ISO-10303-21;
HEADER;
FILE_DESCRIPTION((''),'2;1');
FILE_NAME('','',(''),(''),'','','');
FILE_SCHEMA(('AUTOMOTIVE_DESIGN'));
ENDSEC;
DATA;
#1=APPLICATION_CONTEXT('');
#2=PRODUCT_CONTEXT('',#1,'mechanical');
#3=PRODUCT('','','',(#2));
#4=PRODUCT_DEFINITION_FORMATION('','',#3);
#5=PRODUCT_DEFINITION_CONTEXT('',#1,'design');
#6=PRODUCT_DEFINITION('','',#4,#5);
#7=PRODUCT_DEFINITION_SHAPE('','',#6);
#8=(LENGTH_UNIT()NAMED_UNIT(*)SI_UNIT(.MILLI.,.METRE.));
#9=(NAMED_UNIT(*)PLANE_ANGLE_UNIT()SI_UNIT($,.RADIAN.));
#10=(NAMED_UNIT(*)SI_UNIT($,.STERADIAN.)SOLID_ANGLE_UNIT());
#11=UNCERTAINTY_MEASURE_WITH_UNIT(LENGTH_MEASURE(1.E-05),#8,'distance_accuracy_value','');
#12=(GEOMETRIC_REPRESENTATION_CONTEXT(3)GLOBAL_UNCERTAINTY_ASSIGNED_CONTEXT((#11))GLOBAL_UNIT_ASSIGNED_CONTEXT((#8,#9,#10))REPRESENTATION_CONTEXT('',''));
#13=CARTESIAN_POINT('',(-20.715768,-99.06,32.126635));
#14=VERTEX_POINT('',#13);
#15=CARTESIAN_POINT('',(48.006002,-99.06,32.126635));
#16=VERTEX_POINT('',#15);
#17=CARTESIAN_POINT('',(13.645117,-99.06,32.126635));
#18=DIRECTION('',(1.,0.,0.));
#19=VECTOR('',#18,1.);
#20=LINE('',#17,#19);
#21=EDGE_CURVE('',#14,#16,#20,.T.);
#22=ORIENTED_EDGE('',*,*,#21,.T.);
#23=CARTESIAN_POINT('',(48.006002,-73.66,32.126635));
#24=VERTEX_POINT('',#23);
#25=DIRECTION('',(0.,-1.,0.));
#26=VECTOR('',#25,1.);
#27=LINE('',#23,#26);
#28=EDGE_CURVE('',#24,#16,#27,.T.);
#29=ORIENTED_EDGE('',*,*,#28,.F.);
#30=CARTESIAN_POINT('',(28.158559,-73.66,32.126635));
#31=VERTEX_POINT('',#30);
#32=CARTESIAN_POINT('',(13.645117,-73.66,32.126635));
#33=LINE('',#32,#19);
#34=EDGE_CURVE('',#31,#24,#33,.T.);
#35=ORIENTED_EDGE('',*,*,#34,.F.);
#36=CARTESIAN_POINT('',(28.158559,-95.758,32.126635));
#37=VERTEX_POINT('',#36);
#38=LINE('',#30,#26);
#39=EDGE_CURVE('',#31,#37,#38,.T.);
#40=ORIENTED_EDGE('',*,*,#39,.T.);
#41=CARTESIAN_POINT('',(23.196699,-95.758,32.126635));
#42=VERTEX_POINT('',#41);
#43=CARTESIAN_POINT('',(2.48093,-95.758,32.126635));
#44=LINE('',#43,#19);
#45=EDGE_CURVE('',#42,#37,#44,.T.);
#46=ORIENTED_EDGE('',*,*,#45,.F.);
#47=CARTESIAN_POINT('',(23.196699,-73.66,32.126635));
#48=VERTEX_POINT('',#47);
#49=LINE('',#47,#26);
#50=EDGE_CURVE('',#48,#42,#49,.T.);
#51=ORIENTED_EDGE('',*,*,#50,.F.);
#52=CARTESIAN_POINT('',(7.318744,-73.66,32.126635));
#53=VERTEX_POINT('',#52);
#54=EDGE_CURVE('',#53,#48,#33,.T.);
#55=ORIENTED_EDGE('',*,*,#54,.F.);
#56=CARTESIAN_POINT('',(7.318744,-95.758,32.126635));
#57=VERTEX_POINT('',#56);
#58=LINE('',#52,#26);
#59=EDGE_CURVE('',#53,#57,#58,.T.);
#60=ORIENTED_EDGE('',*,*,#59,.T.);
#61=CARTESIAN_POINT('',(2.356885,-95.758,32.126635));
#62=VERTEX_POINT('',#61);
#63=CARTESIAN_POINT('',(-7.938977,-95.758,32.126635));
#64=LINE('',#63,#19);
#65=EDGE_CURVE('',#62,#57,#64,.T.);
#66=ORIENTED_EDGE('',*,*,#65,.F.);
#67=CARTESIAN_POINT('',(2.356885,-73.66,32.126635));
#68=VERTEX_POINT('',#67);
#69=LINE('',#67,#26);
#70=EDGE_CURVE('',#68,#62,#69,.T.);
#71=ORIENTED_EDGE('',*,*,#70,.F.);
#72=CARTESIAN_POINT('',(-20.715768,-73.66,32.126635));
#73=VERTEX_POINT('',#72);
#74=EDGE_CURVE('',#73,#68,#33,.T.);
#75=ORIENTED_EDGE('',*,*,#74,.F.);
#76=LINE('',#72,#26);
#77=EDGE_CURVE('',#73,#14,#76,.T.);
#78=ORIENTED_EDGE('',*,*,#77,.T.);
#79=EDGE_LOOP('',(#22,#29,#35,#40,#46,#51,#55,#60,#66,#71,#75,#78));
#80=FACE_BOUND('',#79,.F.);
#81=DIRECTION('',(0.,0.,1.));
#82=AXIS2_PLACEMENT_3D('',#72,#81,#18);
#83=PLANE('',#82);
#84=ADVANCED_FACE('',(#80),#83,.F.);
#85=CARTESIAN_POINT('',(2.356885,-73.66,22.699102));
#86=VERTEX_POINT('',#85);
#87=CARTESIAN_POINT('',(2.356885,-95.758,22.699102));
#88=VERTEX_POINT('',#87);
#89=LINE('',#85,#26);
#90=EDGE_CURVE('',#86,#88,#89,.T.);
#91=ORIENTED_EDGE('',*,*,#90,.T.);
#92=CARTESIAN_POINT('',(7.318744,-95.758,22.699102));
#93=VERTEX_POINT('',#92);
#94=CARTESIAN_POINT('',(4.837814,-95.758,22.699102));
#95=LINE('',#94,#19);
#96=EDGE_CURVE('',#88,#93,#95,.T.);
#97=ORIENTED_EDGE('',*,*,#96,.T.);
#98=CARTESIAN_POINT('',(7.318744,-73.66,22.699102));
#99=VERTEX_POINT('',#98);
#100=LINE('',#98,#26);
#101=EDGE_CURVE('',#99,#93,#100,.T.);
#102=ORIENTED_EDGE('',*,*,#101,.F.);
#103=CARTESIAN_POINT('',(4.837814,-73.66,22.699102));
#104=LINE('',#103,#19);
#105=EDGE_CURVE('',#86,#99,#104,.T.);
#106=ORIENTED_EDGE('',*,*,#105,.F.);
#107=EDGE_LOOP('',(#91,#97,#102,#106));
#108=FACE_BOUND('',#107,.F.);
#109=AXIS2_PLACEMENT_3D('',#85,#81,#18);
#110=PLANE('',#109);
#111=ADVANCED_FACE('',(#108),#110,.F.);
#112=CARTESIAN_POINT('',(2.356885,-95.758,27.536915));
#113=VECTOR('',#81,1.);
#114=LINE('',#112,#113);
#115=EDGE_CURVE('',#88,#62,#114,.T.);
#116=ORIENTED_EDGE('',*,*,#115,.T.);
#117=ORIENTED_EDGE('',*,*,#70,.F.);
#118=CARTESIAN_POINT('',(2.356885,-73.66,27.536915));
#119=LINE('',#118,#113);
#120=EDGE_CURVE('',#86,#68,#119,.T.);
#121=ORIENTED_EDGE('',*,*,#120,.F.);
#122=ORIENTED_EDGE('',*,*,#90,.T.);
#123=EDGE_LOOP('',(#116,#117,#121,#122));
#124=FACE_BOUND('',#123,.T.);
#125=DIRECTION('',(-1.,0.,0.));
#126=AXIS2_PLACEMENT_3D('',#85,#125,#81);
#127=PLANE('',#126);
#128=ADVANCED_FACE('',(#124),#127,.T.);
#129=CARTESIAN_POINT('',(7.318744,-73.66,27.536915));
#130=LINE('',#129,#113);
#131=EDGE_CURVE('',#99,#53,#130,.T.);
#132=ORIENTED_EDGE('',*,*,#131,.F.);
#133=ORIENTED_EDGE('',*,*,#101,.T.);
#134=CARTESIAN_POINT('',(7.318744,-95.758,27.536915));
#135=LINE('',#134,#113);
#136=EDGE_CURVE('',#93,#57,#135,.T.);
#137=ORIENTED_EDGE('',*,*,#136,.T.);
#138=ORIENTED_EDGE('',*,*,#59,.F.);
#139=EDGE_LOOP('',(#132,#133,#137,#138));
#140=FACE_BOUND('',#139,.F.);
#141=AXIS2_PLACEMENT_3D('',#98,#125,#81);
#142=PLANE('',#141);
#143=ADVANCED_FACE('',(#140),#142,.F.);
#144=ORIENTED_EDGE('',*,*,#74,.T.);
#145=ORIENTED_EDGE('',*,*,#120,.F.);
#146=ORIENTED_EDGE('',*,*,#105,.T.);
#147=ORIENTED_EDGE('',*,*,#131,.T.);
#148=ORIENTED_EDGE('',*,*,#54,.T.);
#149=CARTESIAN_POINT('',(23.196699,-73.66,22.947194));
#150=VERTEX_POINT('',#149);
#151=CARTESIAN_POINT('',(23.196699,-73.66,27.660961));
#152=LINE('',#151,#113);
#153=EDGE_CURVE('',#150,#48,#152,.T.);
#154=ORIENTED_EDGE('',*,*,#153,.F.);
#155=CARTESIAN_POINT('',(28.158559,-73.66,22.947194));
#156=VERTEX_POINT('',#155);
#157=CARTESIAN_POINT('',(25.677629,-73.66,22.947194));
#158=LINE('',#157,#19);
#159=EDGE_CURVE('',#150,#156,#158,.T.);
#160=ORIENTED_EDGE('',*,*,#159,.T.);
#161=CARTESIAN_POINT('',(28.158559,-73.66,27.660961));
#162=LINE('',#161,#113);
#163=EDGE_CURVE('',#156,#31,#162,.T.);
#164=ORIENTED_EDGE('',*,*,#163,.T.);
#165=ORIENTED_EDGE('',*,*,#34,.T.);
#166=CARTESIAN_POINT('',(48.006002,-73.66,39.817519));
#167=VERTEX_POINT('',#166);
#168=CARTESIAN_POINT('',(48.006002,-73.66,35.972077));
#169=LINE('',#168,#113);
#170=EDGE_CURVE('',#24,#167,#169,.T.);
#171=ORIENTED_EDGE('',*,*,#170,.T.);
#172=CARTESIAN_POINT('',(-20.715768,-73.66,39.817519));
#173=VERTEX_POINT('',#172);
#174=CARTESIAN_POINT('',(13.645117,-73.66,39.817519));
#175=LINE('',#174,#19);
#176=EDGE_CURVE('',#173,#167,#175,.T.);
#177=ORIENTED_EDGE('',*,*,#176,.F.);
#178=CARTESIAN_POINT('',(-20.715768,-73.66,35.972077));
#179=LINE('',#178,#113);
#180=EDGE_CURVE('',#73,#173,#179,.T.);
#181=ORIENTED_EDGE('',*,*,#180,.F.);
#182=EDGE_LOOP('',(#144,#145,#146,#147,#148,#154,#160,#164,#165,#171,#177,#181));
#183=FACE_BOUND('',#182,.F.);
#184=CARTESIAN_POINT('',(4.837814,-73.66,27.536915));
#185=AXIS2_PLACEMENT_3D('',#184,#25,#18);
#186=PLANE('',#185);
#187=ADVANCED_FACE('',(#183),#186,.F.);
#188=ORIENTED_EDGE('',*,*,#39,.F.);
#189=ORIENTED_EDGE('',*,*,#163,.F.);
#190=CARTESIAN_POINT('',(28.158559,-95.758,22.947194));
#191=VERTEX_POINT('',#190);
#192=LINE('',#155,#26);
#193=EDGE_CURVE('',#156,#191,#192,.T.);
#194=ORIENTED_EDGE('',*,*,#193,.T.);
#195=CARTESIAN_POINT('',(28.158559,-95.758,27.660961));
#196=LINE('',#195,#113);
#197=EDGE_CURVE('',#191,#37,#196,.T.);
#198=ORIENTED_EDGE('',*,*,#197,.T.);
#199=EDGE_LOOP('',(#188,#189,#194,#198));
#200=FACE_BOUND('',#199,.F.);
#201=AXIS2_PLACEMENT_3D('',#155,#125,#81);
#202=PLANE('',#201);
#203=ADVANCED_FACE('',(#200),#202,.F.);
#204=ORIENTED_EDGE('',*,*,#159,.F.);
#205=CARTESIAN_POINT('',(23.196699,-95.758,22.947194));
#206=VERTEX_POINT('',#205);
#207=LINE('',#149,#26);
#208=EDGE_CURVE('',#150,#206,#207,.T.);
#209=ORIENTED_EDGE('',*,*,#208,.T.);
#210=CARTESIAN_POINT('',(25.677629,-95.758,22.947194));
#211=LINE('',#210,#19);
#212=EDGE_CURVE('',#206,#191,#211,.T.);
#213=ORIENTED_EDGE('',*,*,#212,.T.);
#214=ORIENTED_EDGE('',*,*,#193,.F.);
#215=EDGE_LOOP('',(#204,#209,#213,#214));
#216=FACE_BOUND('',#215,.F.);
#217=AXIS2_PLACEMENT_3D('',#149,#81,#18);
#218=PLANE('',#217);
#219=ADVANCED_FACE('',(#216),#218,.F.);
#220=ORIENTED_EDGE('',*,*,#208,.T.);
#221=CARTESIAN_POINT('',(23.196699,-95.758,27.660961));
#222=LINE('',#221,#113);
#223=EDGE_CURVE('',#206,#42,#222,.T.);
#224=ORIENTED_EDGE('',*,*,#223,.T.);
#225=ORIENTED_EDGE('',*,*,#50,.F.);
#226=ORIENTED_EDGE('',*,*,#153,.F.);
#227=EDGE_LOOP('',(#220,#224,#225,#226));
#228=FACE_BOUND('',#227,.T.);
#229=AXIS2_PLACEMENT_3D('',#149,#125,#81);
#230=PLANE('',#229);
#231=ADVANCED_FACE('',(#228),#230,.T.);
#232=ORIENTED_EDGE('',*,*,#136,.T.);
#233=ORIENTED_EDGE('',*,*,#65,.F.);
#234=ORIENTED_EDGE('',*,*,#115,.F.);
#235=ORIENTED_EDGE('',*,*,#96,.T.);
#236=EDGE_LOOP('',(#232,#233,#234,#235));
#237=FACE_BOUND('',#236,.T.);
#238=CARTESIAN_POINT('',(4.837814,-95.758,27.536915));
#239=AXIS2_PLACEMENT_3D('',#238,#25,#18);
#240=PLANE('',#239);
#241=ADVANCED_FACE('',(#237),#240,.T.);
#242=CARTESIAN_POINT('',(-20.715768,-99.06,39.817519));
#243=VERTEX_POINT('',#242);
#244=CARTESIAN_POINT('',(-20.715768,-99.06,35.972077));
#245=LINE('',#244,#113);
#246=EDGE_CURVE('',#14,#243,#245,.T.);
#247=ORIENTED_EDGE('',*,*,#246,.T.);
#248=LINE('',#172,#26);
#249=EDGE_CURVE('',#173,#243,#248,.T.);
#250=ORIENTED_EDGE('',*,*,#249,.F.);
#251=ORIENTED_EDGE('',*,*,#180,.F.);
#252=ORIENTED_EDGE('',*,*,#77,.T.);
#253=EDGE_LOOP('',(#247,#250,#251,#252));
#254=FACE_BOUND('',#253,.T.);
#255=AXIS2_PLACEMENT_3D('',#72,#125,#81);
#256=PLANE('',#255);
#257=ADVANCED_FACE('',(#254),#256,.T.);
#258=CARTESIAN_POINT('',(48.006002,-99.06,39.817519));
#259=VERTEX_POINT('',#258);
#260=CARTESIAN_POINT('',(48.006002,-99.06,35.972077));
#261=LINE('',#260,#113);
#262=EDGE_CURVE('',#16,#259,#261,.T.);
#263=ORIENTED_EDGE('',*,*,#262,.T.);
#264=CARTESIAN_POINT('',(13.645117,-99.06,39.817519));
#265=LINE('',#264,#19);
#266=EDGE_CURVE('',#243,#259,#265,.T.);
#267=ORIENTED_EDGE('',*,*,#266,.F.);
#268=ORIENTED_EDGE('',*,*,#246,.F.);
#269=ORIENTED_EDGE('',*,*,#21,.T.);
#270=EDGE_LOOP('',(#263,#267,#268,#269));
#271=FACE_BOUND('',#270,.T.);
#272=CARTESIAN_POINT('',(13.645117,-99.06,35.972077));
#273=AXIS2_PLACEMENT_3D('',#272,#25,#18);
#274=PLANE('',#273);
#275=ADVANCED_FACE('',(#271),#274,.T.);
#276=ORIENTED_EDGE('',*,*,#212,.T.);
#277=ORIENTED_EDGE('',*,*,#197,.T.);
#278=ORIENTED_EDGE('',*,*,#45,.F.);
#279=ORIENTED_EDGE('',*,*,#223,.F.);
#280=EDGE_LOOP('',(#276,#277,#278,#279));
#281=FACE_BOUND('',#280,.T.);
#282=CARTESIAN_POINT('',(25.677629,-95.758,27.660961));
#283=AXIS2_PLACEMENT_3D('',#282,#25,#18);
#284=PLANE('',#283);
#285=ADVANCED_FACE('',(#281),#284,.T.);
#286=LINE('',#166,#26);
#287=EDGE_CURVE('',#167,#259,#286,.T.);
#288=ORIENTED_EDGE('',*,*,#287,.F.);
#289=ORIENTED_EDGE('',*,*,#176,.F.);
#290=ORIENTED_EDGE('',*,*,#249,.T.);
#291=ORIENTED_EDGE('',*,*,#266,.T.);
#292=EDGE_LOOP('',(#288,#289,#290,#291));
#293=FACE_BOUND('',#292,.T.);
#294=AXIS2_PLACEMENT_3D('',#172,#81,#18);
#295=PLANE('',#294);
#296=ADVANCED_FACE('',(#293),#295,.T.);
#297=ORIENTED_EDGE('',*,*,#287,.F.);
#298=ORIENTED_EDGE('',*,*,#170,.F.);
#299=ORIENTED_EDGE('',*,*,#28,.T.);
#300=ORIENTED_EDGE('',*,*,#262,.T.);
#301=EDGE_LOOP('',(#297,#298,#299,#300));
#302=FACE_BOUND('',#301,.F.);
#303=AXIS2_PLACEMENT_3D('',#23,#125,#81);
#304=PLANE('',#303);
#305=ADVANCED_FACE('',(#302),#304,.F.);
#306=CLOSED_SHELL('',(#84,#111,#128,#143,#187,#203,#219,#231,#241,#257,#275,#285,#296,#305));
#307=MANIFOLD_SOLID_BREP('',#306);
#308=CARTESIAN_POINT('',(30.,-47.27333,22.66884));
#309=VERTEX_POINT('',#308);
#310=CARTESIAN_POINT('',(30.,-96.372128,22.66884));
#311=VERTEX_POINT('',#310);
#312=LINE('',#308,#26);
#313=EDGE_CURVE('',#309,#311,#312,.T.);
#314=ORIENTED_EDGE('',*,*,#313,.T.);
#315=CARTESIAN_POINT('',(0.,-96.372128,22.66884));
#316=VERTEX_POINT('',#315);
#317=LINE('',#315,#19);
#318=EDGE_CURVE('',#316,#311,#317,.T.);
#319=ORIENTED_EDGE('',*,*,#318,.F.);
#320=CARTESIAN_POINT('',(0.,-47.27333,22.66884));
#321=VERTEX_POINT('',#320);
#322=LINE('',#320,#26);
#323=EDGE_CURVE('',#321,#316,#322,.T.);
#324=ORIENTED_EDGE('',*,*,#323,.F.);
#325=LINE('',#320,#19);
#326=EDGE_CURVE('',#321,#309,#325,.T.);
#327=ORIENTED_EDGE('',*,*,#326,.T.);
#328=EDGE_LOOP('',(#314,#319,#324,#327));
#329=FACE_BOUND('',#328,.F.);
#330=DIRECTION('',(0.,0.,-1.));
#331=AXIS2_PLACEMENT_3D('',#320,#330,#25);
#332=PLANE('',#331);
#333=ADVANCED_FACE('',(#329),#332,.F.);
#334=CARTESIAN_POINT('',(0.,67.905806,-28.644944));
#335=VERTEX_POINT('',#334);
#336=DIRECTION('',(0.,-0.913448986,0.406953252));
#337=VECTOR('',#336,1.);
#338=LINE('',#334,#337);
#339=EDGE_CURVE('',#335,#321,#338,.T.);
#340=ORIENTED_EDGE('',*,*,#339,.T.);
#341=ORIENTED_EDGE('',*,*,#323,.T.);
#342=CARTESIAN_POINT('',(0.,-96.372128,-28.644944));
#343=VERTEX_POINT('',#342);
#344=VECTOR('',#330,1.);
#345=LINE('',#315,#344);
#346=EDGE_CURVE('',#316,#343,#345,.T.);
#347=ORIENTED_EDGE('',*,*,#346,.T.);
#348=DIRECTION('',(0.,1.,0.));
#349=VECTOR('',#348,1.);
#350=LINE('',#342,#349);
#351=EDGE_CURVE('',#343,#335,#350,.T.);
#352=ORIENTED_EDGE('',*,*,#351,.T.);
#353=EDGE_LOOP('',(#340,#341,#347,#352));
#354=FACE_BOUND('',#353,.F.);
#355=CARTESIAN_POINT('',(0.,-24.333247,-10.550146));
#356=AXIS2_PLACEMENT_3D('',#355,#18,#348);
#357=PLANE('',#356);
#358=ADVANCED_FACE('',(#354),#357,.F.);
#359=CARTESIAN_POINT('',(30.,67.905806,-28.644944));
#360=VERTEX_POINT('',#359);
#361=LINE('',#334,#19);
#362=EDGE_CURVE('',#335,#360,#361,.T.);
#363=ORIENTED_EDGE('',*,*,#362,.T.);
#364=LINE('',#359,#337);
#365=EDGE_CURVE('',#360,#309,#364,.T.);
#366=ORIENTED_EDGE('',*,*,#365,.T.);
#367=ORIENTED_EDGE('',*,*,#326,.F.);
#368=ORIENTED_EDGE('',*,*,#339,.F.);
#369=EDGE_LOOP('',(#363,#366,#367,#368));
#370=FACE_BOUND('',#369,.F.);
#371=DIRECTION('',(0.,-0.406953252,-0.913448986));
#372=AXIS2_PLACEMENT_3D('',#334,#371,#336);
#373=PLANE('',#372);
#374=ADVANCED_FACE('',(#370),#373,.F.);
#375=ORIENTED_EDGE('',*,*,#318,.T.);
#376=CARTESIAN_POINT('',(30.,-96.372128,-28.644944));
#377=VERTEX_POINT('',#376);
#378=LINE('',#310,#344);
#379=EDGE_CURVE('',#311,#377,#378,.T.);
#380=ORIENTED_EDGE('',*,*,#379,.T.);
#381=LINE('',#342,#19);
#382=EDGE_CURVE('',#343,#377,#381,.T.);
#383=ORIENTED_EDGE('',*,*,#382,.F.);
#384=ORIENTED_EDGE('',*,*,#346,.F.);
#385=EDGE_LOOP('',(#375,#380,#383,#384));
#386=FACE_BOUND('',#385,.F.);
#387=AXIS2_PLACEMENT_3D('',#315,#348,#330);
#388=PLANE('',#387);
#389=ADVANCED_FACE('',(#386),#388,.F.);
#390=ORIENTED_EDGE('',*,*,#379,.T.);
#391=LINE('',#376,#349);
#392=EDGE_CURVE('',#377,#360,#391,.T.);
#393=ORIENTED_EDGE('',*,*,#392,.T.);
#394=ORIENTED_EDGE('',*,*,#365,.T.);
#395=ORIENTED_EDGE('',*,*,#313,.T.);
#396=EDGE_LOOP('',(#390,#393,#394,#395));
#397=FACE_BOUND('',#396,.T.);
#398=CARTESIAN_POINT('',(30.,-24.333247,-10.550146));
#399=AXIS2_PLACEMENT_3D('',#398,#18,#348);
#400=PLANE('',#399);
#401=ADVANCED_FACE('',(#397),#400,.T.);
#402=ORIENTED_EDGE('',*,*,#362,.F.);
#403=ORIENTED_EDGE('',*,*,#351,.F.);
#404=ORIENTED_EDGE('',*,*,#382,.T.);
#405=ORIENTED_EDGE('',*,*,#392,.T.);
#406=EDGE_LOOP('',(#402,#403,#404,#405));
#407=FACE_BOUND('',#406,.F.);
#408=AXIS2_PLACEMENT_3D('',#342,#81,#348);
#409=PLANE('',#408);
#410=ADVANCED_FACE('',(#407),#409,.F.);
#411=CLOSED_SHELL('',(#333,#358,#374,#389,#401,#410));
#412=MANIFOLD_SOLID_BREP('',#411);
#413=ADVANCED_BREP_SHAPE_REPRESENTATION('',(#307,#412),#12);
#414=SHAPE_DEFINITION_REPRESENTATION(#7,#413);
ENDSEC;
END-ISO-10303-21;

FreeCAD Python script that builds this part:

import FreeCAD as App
import Part
import Sketcher

V = App.Vector
Q = App.Units.Quantity

doc = App.newDocument("Part")
params = doc.addObject("Spreadsheet::Sheet", "Params")
for row, (alias, value) in enumerate([
    ("pad1_length", "30 mm"),
    ("pad2_length", "1 in"),
    ("pad3_length", "0.87 in"),
], start=1):
    params.set(f"A{row}", alias)
    params.set(f"B{row}", "=" + value)
    params.setAlias(f"B{row}", alias)

body = doc.addObject("PartDesign::Body", "Body")

# Sketch on YZ plane
sketch1 = doc.addObject("Sketcher::SketchObject", "Sketch")
body.addObject(sketch1)
sketch1.AttachmentSupport = (doc.YZ_Plane, [""])
sketch1.MapMode = "FlatFace"
sketch1.addGeometry(Part.LineSegment(V(-47.27333, 22.66884, 0), V(-96.372128, 22.66884, 0)), False)
sketch1.addGeometry(Part.LineSegment(V(-96.372128, 22.66884, 0), V(-96.372128, -28.644944, 0)), False)
sketch1.addGeometry(Part.LineSegment(V(-96.372128, -28.644944, 0), V(67.905806, -28.644944, 0)), False)
sketch1.addGeometry(Part.LineSegment(V(67.905806, -28.644944, 0), V(-47.27333, 22.66884, 0)), False)
sketch1.addConstraint(Sketcher.Constraint("Coincident", 0, 2, 1, 1))
sketch1.addConstraint(Sketcher.Constraint("Coincident", 1, 2, 2, 1))
sketch1.addConstraint(Sketcher.Constraint("Coincident", 2, 2, 3, 1))
sketch1.addConstraint(Sketcher.Constraint("Coincident", 3, 2, 0, 1))
sketch1.addConstraint(Sketcher.Constraint("Horizontal", 0))
sketch1.addConstraint(Sketcher.Constraint("Vertical", 1))
sketch1.addConstraint(Sketcher.Constraint("Horizontal", 2))
sketch1.addConstraint(Sketcher.Constraint("DistanceX", 0, 2, 0, 1, 49.098798))
sketch1.addConstraint(Sketcher.Constraint("DistanceX", 2, 1, 2, 2, 164.277934))
sketch1.addConstraint(Sketcher.Constraint("DistanceY", 1, 2, 1, 1, 51.313784))
sketch1.addConstraint(Sketcher.Constraint("DistanceX", 0, 2, -1, 1, 96.372128))
sketch1.addConstraint(Sketcher.Constraint("DistanceY", -1, 1, 0, 2, 22.66884))
pad1 = doc.addObject("PartDesign::Pad", "Pad")
body.addObject(pad1)
pad1.Profile = sketch1
pad1.setExpression("Length", "Params.pad1_length")
body2 = doc.addObject("PartDesign::Body", "Body001")

# Sketch on XZ plane
sketch2 = doc.addObject("Sketcher::SketchObject", "Sketch001")
body2.addObject(sketch2)
sketch2.AttachmentSupport = (doc.getObject("XZ_Plane001"), [""])
sketch2.MapMode = "FlatFace"
sketch2.AttachmentOffset = App.Placement(V(0, 0, 2.9 * 25.4), App.Rotation())
sketch2.addGeometry(Part.LineSegment(V(-20.715768, 39.817519, 0), V(-20.715768, 32.126635, 0)), False)
sketch2.addGeometry(Part.LineSegment(V(-20.715768, 32.126635, 0), V(48.006002, 32.126635, 0)), False)
sketch2.addGeometry(Part.LineSegment(V(48.006002, 32.126635, 0), V(48.006002, 39.817519, 0)), False)
sketch2.addGeometry(Part.LineSegment(V(48.006002, 39.817519, 0), V(-20.715768, 39.817519, 0)), False)
sketch2.addConstraint(Sketcher.Constraint("Coincident", 0, 2, 1, 1))
sketch2.addConstraint(Sketcher.Constraint("Coincident", 1, 2, 2, 1))
sketch2.addConstraint(Sketcher.Constraint("Coincident", 2, 2, 3, 1))
sketch2.addConstraint(Sketcher.Constraint("Coincident", 3, 2, 0, 1))
sketch2.addConstraint(Sketcher.Constraint("Vertical", 0))
sketch2.addConstraint(Sketcher.Constraint("Horizontal", 1))
sketch2.addConstraint(Sketcher.Constraint("Vertical", 2))
sketch2.addConstraint(Sketcher.Constraint("Horizontal", 3))
sketch2.addConstraint(Sketcher.Constraint("DistanceX", -1, 1, 1, 2, Q("1.8900001 in")))
sketch2.addConstraint(Sketcher.Constraint("DistanceX", 1, 1, 1, 2, 68.72177))
sketch2.addConstraint(Sketcher.Constraint("DistanceY", 0, 2, 0, 1, 7.690884))
sketch2.addConstraint(Sketcher.Constraint("DistanceY", -1, 1, 2, 2, 39.817519))
pad2 = doc.addObject("PartDesign::Pad", "Pad001")
body2.addObject(pad2)
pad2.Profile = sketch2
pad2.setExpression("Length", "Params.pad2_length")

# Sketch on XZ plane
sketch3 = doc.addObject("Sketcher::SketchObject", "Sketch002")
body2.addObject(sketch3)
sketch3.AttachmentSupport = (doc.getObject("XZ_Plane001"), [""])
sketch3.MapMode = "FlatFace"
sketch3.AttachmentOffset = App.Placement(V(0, 0, 2.9 * 25.4), App.Rotation())
sketch3.addGeometry(Part.LineSegment(V(2.356885, 32.374727, 0), V(2.356885, 22.699102, 0)), False)
sketch3.addGeometry(Part.LineSegment(V(2.356885, 22.699102, 0), V(7.318744, 22.699102, 0)), False)
sketch3.addGeometry(Part.LineSegment(V(7.318744, 22.699102, 0), V(7.318744, 32.374727, 0)), False)
sketch3.addGeometry(Part.LineSegment(V(7.318744, 32.374727, 0), V(2.356885, 32.374727, 0)), False)
sketch3.addGeometry(Part.LineSegment(V(23.196699, 32.374728, 0), V(23.196699, 22.947194, 0)), False)
sketch3.addGeometry(Part.LineSegment(V(23.196699, 22.947194, 0), V(28.158559, 22.947194, 0)), False)
sketch3.addGeometry(Part.LineSegment(V(28.158559, 22.947194, 0), V(28.158559, 32.374728, 0)), False)
sketch3.addGeometry(Part.LineSegment(V(28.158559, 32.374728, 0), V(23.196699, 32.374728, 0)), False)
sketch3.addConstraint(Sketcher.Constraint("Coincident", 0, 2, 1, 1))
sketch3.addConstraint(Sketcher.Constraint("Coincident", 1, 2, 2, 1))
sketch3.addConstraint(Sketcher.Constraint("Coincident", 2, 2, 3, 1))
sketch3.addConstraint(Sketcher.Constraint("Coincident", 3, 2, 0, 1))
sketch3.addConstraint(Sketcher.Constraint("Coincident", 4, 2, 5, 1))
sketch3.addConstraint(Sketcher.Constraint("Coincident", 5, 2, 6, 1))
sketch3.addConstraint(Sketcher.Constraint("Coincident", 6, 2, 7, 1))
sketch3.addConstraint(Sketcher.Constraint("Coincident", 7, 2, 4, 1))
sketch3.addConstraint(Sketcher.Constraint("Vertical", 0))
sketch3.addConstraint(Sketcher.Constraint("Horizontal", 1))
sketch3.addConstraint(Sketcher.Constraint("Vertical", 2))
sketch3.addConstraint(Sketcher.Constraint("Horizontal", 3))
sketch3.addConstraint(Sketcher.Constraint("Vertical", 4))
sketch3.addConstraint(Sketcher.Constraint("Horizontal", 5))
sketch3.addConstraint(Sketcher.Constraint("Vertical", 6))
sketch3.addConstraint(Sketcher.Constraint("Horizontal", 7))
sketch3.addConstraint(Sketcher.Constraint("Horizontal", 3, 2, 6, 2))
sketch3.addConstraint(Sketcher.Constraint("Equal", 3, 5))
sketch3.addConstraint(Sketcher.Constraint("DistanceX", 1, 1, 1, 2, 4.961859))
sketch3.addConstraint(Sketcher.Constraint("DistanceX", -1, 1, 4, 2, 23.196699))
sketch3.addConstraint(Sketcher.Constraint("DistanceY", 0, 2, 0, 1, 9.675625))
sketch3.addConstraint(Sketcher.Constraint("DistanceY", 4, 2, 4, 1, 9.427534))
sketch3.addConstraint(Sketcher.Constraint("DistanceX", -1, 1, 0, 2, 2.356885))
sketch3.addConstraint(Sketcher.Constraint("DistanceY", -1, 1, 0, 2, 22.699102))
pad3 = doc.addObject("PartDesign::Pad", "Pad002")
body2.addObject(pad3)
pad3.Profile = sketch3
pad3.setExpression("Length", "Params.pad3_length")

doc.recompute()
